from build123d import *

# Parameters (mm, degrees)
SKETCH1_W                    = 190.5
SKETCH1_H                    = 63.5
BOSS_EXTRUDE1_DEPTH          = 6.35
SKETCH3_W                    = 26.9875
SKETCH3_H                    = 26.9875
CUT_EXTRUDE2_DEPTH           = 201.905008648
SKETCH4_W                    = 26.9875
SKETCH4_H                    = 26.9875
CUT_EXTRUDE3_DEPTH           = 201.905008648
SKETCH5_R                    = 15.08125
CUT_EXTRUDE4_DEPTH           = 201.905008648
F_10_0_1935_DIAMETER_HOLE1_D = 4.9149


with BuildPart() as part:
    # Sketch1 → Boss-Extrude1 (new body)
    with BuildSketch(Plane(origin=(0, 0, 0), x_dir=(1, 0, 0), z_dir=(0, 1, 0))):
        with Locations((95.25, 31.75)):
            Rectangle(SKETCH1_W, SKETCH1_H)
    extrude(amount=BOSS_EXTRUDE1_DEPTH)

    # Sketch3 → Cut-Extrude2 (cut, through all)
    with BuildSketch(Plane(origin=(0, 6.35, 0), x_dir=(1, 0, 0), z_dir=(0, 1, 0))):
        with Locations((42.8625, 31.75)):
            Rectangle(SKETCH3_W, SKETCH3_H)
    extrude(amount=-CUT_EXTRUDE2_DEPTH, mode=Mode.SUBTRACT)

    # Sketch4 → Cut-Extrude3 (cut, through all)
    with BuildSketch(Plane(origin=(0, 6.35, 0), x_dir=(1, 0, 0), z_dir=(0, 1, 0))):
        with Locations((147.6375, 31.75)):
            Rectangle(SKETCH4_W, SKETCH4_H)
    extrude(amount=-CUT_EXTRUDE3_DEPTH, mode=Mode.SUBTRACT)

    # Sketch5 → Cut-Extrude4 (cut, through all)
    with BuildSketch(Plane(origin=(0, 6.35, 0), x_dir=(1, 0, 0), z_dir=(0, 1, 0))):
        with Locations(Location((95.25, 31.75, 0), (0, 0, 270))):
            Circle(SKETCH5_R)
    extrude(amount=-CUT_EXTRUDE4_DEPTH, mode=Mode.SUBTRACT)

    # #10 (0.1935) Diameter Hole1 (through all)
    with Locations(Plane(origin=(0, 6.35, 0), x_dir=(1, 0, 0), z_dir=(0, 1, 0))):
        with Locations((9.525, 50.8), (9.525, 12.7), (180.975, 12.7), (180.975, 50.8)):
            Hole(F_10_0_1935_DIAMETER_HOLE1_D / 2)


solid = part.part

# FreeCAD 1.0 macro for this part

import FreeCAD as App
import Part
import Sketcher
Q = App.Units.Quantity


def add_polygon(sketch, points):
    """Adds a closed chain of lines whose ends are joined by coincident constraints."""
    first, n = sketch.GeometryCount, len(points)
    for a, b in zip(points, points[1:] + points[:1]):
        sketch.addGeometry(Part.LineSegment(App.Vector(*a, 0), App.Vector(*b, 0)), False)
    for i in range(n):
        sketch.addConstraint(Sketcher.Constraint("Coincident", first + i, 2, first + (i + 1) % n, 1))

doc = App.newDocument("Part")
body = doc.addObject("PartDesign::Body", "Body")

# Sketch on XZ plane
sketch1 = body.newObject("Sketcher::SketchObject", "Sketch")
sketch1.AttachmentSupport = (doc.getObject("XZ_Plane"), [""])
sketch1.MapMode = "FlatFace"
add_polygon(sketch1, [(0, -63.5), (0, 0), (190.5, 0), (190.5, -63.5)])  # lines 0-3
sketch1.addConstraint(Sketcher.Constraint("Vertical", 0))
sketch1.addConstraint(Sketcher.Constraint("Horizontal", 1))
sketch1.addConstraint(Sketcher.Constraint("Vertical", 2))
sketch1.addConstraint(Sketcher.Constraint("Horizontal", 3))
sketch1.addConstraint(Sketcher.Constraint("Coincident", 0, 2, -1, 1))
sketch1.addConstraint(Sketcher.Constraint("DistanceX", 1, 1, 1, 2, Q("7.5 in")))
sketch1.addConstraint(Sketcher.Constraint("DistanceY", 0, 1, 0, 2, Q("2.5 in")))
pad1 = body.newObject("PartDesign::Pad", "Pad")
pad1.Profile = sketch1
pad1.Length = Q("0.25 in")
pad1.Reversed = True

# Sketch on XZ plane
sketch2 = body.newObject("Sketcher::SketchObject", "Sketch001")
sketch2.AttachmentSupport = (doc.getObject("XZ_Plane"), [""])
sketch2.MapMode = "FlatFace"
sketch2.AttachmentOffset = App.Placement(App.Vector(0, 0, -0.25 * 25.4), App.Rotation())
add_polygon(sketch2, [(29.36875, -45.24375), (29.36875, -18.25625), (56.35625, -18.25625), (56.35625, -45.24375)])  # lines 0-3
sketch2.addConstraint(Sketcher.Constraint("Vertical", 0))
sketch2.addConstraint(Sketcher.Constraint("Horizontal", 1))
sketch2.addConstraint(Sketcher.Constraint("Vertical", 2))
sketch2.addConstraint(Sketcher.Constraint("Horizontal", 3))
sketch2.addConstraint(Sketcher.Constraint("Equal", 3, 0))
sketch2.addConstraint(Sketcher.Constraint("DistanceX", 1, 1, 1, 2, Q("1.0625 in")))
sketch2.addConstraint(Sketcher.Constraint("DistanceX", -1, 1, 0, 2, Q("1.15625 in")))
sketch2.addConstraint(Sketcher.Constraint("DistanceY", 0, 2, -1, 1, Q("0.71875 in")))
pocket1 = body.newObject("PartDesign::Pocket", "Pocket")
pocket1.Profile = sketch2
pocket1.Type = "ThroughAll"
pocket1.Reversed = True

# Sketch on XZ plane
sketch3 = body.newObject("Sketcher::SketchObject", "Sketch002")
sketch3.AttachmentSupport = (doc.getObject("XZ_Plane"), [""])
sketch3.MapMode = "FlatFace"
sketch3.AttachmentOffset = App.Placement(App.Vector(0, 0, -0.25 * 25.4), App.Rotation())
add_polygon(sketch3, [(134.14375, -45.24375), (134.14375, -18.25625), (161.13125, -18.25625), (161.13125, -45.24375)])  # lines 0-3
sketch3.addConstraint(Sketcher.Constraint("Vertical", 0))
sketch3.addConstraint(Sketcher.Constraint("Horizontal", 1))
sketch3.addConstraint(Sketcher.Constraint("Vertical", 2))
sketch3.addConstraint(Sketcher.Constraint("Horizontal", 3))
sketch3.addConstraint(Sketcher.Constraint("Equal", 3, 0))
sketch3.addConstraint(Sketcher.Constraint("DistanceX", 1, 1, 1, 2, Q("1.0625 in")))
sketch3.addConstraint(Sketcher.Constraint("DistanceX", -1, 1, 0, 2, Q("5.28125 in")))
sketch3.addConstraint(Sketcher.Constraint("DistanceY", 0, 2, -1, 1, Q("0.71875 in")))
pocket2 = body.newObject("PartDesign::Pocket", "Pocket001")
pocket2.Profile = sketch3
pocket2.Type = "ThroughAll"
pocket2.Reversed = True

# Sketch on XZ plane
sketch4 = body.newObject("Sketcher::SketchObject", "Sketch003")
sketch4.AttachmentSupport = (doc.getObject("XZ_Plane"), [""])
sketch4.MapMode = "FlatFace"
sketch4.AttachmentOffset = App.Placement(App.Vector(0, 0, -0.25 * 25.4), App.Rotation())
sketch4.addGeometry(Part.Circle(App.Vector(95.25, -31.75, 0), App.Vector(0, 0, 1), 15.08125), False)
sketch4.addConstraint(Sketcher.Constraint("Diameter", 0, Q("1.1875 in")))
sketch4.addConstraint(Sketcher.Constraint("DistanceX", -1, 1, 0, 3, Q("3.75 in")))
sketch4.addConstraint(Sketcher.Constraint("DistanceY", 0, 3, -1, 1, Q("1.25 in")))
pocket3 = body.newObject("PartDesign::Pocket", "Pocket002")
pocket3.Profile = sketch4
pocket3.Type = "ThroughAll"
pocket3.Reversed = True

# Sketch on XZ plane
sketch5 = body.newObject("Sketcher::SketchObject", "Sketch004")
sketch5.AttachmentSupport = (doc.getObject("XZ_Plane"), [""])
sketch5.MapMode = "FlatFace"
sketch5.AttachmentOffset = App.Placement(App.Vector(0, 0, -0.25 * 25.4), App.Rotation())
sketch5.addGeometry(Part.Circle(App.Vector(9.525, -50.8, 0), App.Vector(0, 0, 1), 2.45745), False)
sketch5.addGeometry(Part.Circle(App.Vector(9.525, -12.7, 0), App.Vector(0, 0, 1), 2.45745), False)
sketch5.addGeometry(Part.Circle(App.Vector(180.975, -12.7, 0), App.Vector(0, 0, 1), 2.45745), False)
sketch5.addGeometry(Part.Circle(App.Vector(180.975, -50.8, 0), App.Vector(0, 0, 1), 2.45745), False)
sketch5.addConstraint(Sketcher.Constraint("Equal", 0, 1))
sketch5.addConstraint(Sketcher.Constraint("Equal", 1, 2))
sketch5.addConstraint(Sketcher.Constraint("Equal", 2, 3))
sketch5.addConstraint(Sketcher.Constraint("Horizontal", 1, 3, 2, 3))
sketch5.addConstraint(Sketcher.Constraint("Horizontal", 0, 3, 3, 3))
sketch5.addConstraint(Sketcher.Constraint("Vertical", 0, 3, 1, 3))
sketch5.addConstraint(Sketcher.Constraint("Vertical", 2, 3, 3, 3))
sketch5.addConstraint(Sketcher.Constraint("DistanceY", 0, 3, -1, 1, Q("2 in")))
sketch5.addConstraint(Sketcher.Constraint("Diameter", 0, Q("0.1935 in")))
sketch5.addConstraint(Sketcher.Constraint("DistanceY", 1, 3, -1, 1, Q("0.5 in")))
sketch5.addConstraint(Sketcher.Constraint("DistanceX", 1, 3, 2, 3, Q("6.75 in")))
sketch5.addConstraint(Sketcher.Constraint("DistanceX", -1, 1, 0, 3, Q("0.375 in")))
doc.recompute()
hole = body.newObject("PartDesign::Hole", "Hole")
hole.Profile = sketch5
hole.ThreadType = "None"
hole.Diameter = Q("0.1935 in")
hole.DepthType = "ThroughAll"
hole.Reversed = True

doc.recompute()
